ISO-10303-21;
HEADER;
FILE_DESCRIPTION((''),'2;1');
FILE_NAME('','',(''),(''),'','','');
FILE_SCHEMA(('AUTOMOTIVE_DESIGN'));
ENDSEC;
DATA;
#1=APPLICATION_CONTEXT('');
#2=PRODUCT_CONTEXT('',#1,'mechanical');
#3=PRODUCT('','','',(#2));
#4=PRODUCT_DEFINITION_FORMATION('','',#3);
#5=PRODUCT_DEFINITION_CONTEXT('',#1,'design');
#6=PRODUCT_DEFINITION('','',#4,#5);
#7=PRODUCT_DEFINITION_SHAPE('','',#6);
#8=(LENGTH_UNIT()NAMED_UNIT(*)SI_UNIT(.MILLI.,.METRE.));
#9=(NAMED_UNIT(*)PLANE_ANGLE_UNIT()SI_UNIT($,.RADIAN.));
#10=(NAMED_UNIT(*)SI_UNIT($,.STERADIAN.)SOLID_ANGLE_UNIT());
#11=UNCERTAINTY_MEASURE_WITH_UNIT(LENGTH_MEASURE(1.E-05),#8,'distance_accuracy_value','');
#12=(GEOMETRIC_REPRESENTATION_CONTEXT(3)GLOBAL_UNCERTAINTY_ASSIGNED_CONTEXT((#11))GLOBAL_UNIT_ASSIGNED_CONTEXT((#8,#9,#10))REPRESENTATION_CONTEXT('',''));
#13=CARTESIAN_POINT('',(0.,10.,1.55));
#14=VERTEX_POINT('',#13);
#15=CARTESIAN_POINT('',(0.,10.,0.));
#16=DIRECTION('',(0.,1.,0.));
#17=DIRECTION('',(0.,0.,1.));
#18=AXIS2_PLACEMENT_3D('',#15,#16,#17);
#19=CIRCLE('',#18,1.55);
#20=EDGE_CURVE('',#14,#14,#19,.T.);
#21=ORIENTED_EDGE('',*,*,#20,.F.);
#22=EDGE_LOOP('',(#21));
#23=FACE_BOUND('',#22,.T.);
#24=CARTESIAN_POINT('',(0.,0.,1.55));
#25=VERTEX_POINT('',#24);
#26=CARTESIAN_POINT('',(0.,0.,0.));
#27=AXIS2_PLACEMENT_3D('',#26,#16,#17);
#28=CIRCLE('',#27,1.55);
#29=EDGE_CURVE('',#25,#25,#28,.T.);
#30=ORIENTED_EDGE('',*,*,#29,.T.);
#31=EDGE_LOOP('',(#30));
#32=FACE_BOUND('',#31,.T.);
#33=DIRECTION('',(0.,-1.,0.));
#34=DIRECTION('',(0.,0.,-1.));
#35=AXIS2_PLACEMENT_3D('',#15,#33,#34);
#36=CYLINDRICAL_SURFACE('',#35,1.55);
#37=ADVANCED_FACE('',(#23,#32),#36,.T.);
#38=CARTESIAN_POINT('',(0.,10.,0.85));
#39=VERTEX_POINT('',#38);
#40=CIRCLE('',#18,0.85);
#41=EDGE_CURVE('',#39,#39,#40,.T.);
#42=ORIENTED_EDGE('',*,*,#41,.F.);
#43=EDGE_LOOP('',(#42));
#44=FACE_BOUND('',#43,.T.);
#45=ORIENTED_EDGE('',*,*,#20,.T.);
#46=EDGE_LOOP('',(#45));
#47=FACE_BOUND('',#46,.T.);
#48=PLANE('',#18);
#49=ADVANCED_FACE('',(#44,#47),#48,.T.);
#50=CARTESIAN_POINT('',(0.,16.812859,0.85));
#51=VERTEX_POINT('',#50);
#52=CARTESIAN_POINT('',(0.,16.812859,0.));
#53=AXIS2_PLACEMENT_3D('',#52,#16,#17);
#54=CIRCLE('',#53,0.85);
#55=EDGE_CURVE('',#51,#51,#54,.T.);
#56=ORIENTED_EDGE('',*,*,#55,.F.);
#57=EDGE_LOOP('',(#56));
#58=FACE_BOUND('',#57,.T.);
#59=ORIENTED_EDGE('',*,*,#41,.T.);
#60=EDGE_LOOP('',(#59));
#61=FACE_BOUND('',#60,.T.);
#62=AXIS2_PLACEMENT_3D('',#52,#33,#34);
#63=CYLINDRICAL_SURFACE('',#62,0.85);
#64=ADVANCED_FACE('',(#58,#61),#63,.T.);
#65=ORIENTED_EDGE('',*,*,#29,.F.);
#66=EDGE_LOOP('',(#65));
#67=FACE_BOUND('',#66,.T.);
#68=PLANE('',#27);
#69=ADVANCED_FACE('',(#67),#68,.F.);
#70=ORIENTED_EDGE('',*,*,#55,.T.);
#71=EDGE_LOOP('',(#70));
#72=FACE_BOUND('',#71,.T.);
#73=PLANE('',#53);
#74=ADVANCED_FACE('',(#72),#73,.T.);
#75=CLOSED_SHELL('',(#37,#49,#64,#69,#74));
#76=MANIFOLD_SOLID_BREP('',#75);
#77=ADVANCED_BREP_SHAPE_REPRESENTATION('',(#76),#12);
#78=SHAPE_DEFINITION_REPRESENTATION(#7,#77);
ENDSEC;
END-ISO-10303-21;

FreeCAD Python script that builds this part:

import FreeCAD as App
import Part
import Sketcher
from FreeCAD import Vector
Q = App.Units.Quantity

doc = App.newDocument("Part")
params = doc.addObject("Spreadsheet::Sheet", "Params")
for row, (alias, value) in enumerate([
    ("sketch1_diameter", "3.1 mm"),
    ("pad1_length", "10 mm"),
    ("sketch2_diameter", "1.7 mm"),
    ("pad2_length", "6.812859 mm"),
], start=1):
    params.set(f"A{row}", alias)
    params.set(f"B{row}", "=" + value)
    params.setAlias(f"B{row}", alias)

body = doc.addObject("PartDesign::Body", "Body")

# Sketch on XZ plane
sketch1 = body.newObject("Sketcher::SketchObject", "Sketch")
sketch1.AttachmentSupport = (doc.getObject("XZ_Plane"), [""])
sketch1.MapMode = "FlatFace"
sketch1.addGeometry(Part.Circle(Vector(0, 0, 0), Vector(0, 0, 1), 1.6), False)
sketch1.addConstraint([
    Sketcher.Constraint("Coincident", 0, 3, -1, 1),
    Sketcher.Constraint("Diameter", 0, Q("3.1 mm")),
])
sketch1.setExpression("Constraints[1]", "Params.sketch1_diameter")
pad1 = body.newObject("PartDesign::Pad", "Pad")
pad1.Profile = sketch1
pad1.setExpression("Length", "Params.pad1_length")
pad1.Reversed = True

# Sketch on XZ plane
sketch2 = body.newObject("Sketcher::SketchObject", "Sketch001")
sketch2.AttachmentSupport = (doc.getObject("XZ_Plane"), [""])
sketch2.MapMode = "FlatFace"
sketch2.AttachmentOffset = App.Placement(Vector(0, 0, -10), App.Rotation())
sketch2.addGeometry(Part.Circle(Vector(0, 0, 0), Vector(0, 0, 1), 0.8), False)
sketch2.addConstraint([
    Sketcher.Constraint("Coincident", 0, 3, -1, 1),
    Sketcher.Constraint("Diameter", 0, Q("1.7 mm")),
])
sketch2.setExpression("Constraints[1]", "Params.sketch2_diameter")
pad2 = body.newObject("PartDesign::Pad", "Pad001")
pad2.Profile = sketch2
pad2.setExpression("Length", "Params.pad2_length")
pad2.Reversed = True

doc.recompute()
